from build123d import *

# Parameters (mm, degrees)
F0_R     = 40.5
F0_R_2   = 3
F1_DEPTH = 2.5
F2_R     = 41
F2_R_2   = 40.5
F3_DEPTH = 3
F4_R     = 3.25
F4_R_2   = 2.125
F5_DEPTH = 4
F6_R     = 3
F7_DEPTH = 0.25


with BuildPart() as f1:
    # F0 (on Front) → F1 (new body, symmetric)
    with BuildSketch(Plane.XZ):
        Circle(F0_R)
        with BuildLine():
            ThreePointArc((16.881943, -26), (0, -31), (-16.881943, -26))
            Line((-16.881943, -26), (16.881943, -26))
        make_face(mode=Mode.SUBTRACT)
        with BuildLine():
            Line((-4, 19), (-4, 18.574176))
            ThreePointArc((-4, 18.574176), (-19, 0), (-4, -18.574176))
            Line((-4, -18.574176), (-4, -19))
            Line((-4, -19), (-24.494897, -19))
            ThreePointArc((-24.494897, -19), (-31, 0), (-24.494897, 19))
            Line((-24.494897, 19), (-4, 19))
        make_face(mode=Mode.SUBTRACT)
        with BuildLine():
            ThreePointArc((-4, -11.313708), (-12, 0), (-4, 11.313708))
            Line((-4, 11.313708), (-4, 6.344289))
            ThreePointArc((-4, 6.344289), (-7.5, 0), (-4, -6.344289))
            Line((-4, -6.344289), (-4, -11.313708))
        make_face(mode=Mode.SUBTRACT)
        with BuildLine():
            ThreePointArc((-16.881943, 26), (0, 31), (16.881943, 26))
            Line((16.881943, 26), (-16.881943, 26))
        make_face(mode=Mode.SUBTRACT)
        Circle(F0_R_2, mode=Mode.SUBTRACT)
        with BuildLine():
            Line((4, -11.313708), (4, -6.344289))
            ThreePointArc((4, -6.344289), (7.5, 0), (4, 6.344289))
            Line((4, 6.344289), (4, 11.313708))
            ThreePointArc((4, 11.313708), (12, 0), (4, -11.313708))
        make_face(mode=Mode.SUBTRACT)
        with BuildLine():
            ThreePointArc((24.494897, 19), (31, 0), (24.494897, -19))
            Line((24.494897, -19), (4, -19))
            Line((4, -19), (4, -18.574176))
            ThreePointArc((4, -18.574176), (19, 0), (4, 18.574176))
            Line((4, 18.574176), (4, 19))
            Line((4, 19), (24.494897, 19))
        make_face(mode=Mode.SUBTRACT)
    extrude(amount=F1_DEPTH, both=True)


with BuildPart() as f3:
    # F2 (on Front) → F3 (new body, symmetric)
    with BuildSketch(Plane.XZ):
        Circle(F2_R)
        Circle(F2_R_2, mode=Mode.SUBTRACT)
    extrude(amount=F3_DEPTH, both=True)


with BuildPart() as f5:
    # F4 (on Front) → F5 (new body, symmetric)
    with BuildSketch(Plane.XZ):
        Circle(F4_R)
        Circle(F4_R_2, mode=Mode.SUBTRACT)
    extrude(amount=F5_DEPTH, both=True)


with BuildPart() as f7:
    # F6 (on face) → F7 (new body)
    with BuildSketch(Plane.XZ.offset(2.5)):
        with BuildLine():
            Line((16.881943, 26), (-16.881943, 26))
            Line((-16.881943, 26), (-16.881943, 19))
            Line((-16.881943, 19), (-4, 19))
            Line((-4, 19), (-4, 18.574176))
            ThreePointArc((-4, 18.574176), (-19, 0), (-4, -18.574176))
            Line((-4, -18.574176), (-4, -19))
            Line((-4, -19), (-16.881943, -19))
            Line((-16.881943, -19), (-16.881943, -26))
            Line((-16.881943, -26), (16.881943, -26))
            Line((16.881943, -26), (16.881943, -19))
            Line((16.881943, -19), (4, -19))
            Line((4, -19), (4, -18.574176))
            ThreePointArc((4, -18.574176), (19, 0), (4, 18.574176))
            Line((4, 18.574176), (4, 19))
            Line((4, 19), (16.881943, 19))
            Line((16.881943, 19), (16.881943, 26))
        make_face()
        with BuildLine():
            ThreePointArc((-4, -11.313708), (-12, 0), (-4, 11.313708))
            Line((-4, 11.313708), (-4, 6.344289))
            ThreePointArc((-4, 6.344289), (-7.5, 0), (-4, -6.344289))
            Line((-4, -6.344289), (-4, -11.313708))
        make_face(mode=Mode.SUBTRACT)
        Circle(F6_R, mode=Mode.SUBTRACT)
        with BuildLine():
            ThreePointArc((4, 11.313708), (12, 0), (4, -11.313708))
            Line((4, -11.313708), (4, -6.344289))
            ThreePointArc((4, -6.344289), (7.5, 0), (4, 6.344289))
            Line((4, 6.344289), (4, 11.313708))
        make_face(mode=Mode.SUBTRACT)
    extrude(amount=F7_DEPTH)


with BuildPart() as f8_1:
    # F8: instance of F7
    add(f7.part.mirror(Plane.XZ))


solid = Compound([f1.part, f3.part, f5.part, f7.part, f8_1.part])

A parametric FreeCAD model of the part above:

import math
import FreeCAD as App
import Part
import Sketcher
from FreeCAD import Vector

doc = App.newDocument("Part")
params = doc.addObject("Spreadsheet::Sheet", "Params")
for row, (alias, value) in enumerate([
    ("sketch1_diameter", "81 mm"),
    ("sketch1_diameter2", "6 mm"),
    ("sketch1_radius", "19 mm"),
    ("sketch1_radius2", "30.999998 mm"),
    ("sketch1_radius3", "11.999999 mm"),
    ("pad1_length", "5 mm"),
    ("sketch2_diameter", "82 mm"),
    ("sketch2_diameter2", "81 mm"),
    ("pad2_length", "6 mm"),
    ("sketch3_diameter", "6.5 mm"),
    ("sketch3_diameter2", "4.25 mm"),
    ("pad3_length", "8 mm"),
    ("sketch4_diameter", "6 mm"),
    ("sketch4_radius", "19 mm"),
    ("sketch4_radius2", "11.999999 mm"),
    ("sketch4_radius3", "7.5 mm"),
    ("sketch4_height", "7 mm"),
    ("pad4_length", "0.25 mm"),
], start=1):
    params.set(f"A{row}", alias)
    params.set(f"B{row}", "=" + value)
    params.setAlias(f"B{row}", alias)

body = doc.addObject("PartDesign::Body", "Body")

# Sketch on XZ plane
sketch1 = body.newObject("Sketcher::SketchObject", "Sketch")
sketch1.AttachmentSupport = (doc.getObject("XZ_Plane"), [""])
sketch1.MapMode = "FlatFace"
sketch1.addGeometry([
    Part.Circle(Vector(0, 0, 0), Vector(0, 0, 1), 40.5),  # 0
    Part.LineSegment(Vector(-24.494897, 19, 0), Vector(-4, 19, 0)),  # 1
    Part.LineSegment(Vector(-4, 19, 0), Vector(-4, 18.574176, 0)),  # 2
    Part.ArcOfCircle(Part.Circle(Vector(0, 0, 0), Vector(0, 0, 1), 19), math.radians(102.153199), math.radians(257.846801)),  # 3
    Part.LineSegment(Vector(-4, -18.574176, 0), Vector(-4, -19, 0)),  # 4
    Part.LineSegment(Vector(-4, -19, 0), Vector(-24.494897, -19, 0)),  # 5
    Part.ArcOfCircle(Part.Circle(Vector(-0.000002, 0, 0), Vector(0, 0, 1), 30.999998), math.radians(142.200275), math.radians(217.799725)),  # 6
    Part.LineSegment(Vector(-16.881943, -26, 0), Vector(16.881943, -26, 0)),  # 7
    Part.ArcOfCircle(Part.Circle(Vector(0, 0, 0), Vector(0, 0, 1), 31), math.radians(-122.995886), math.radians(-57.004114)),  # 8
    Part.LineSegment(Vector(-4, -6.344289, 0), Vector(-4, -11.313708, 0)),  # 9
    Part.ArcOfCircle(Part.Circle(Vector(-0.000001, 0, 0), Vector(0, 0, 1), 11.999999), math.radians(109.471218), math.radians(250.528782)),  # 10
    Part.LineSegment(Vector(-4, 11.313708, 0), Vector(-4, 6.344289, 0)),  # 11
    Part.ArcOfCircle(Part.Circle(Vector(0, 0, 0), Vector(0, 0, 1), 7.5), math.radians(122.230954), math.radians(237.769046)),  # 12
    Part.Circle(Vector(0, 0, 0), Vector(0, 0, 1), 3),  # 13
    Part.ArcOfCircle(Part.Circle(Vector(0.000001, 0, 0), Vector(0, 0, 1), 11.999999), math.radians(-70.528782), math.radians(70.528782)),  # 14
    Part.LineSegment(Vector(4, -11.313708, 0), Vector(4, -6.344289, 0)),  # 15
    Part.ArcOfCircle(Part.Circle(Vector(0, 0, 0), Vector(0, 0, 1), 7.5), math.radians(-57.769046), math.radians(57.769046)),  # 16
    Part.LineSegment(Vector(4, 6.344289, 0), Vector(4, 11.313708, 0)),  # 17
    Part.LineSegment(Vector(4, 19, 0), Vector(24.494897, 19, 0)),  # 18
    Part.ArcOfCircle(Part.Circle(Vector(0.000002, 0, 0), Vector(0, 0, 1), 30.999998), math.radians(-37.799725), math.radians(37.799725)),  # 19
    Part.LineSegment(Vector(24.494897, -19, 0), Vector(4, -19, 0)),  # 20
    Part.LineSegment(Vector(4, -19, 0), Vector(4, -18.574176, 0)),  # 21
    Part.ArcOfCircle(Part.Circle(Vector(0, 0, 0), Vector(0, 0, 1), 19), math.radians(-77.846801), math.radians(77.846801)),  # 22
    Part.LineSegment(Vector(4, 18.574176, 0), Vector(4, 19, 0)),  # 23
    Part.LineSegment(Vector(16.881943, 26, 0), Vector(-16.881943, 26, 0)),  # 24
    Part.ArcOfCircle(Part.Circle(Vector(0, 0, 0), Vector(0, 0, 1), 31), math.radians(57.004114), math.radians(122.995886)),  # 25
], False)
sketch1.addConstraint([
    Sketcher.Constraint("Coincident", 1, 2, 2, 1),
    Sketcher.Constraint("Coincident", 2, 2, 3, 1),
    Sketcher.Constraint("Coincident", 3, 2, 4, 1),
    Sketcher.Constraint("Coincident", 4, 2, 5, 1),
    Sketcher.Constraint("Coincident", 5, 2, 6, 2),
    Sketcher.Constraint("Coincident", 6, 1, 1, 1),
    Sketcher.Constraint("Coincident", 7, 1, 8, 1),
    Sketcher.Constraint("Coincident", 8, 2, 7, 2),
    Sketcher.Constraint("Coincident", 9, 2, 10, 2),
    Sketcher.Constraint("Coincident", 10, 1, 11, 1),
    Sketcher.Constraint("Coincident", 11, 2, 12, 1),
    Sketcher.Constraint("Coincident", 12, 2, 9, 1),
    Sketcher.Constraint("Coincident", 14, 1, 15, 1),
    Sketcher.Constraint("Coincident", 15, 2, 16, 1),
    Sketcher.Constraint("Coincident", 16, 2, 17, 1),
    Sketcher.Constraint("Coincident", 17, 2, 14, 2),
    Sketcher.Constraint("Coincident", 18, 2, 19, 2),
    Sketcher.Constraint("Coincident", 19, 1, 20, 1),
    Sketcher.Constraint("Coincident", 20, 2, 21, 1),
    Sketcher.Constraint("Coincident", 21, 2, 22, 1),
    Sketcher.Constraint("Coincident", 22, 2, 23, 1),
    Sketcher.Constraint("Coincident", 23, 2, 18, 1),
    Sketcher.Constraint("Coincident", 24, 1, 25, 1),
    Sketcher.Constraint("Coincident", 25, 2, 24, 2),
    Sketcher.Constraint("Horizontal", 1),
    Sketcher.Constraint("Vertical", 2),
    Sketcher.Constraint("Vertical", 4),
    Sketcher.Constraint("Horizontal", 5),
    Sketcher.Constraint("Horizontal", 7),
    Sketcher.Constraint("Vertical", 9),
    Sketcher.Constraint("Vertical", 11),
    Sketcher.Constraint("Vertical", 15),
    Sketcher.Constraint("Vertical", 17),
    Sketcher.Constraint("Horizontal", 18),
    Sketcher.Constraint("Horizontal", 20),
    Sketcher.Constraint("Vertical", 21),
    Sketcher.Constraint("Vertical", 23),
    Sketcher.Constraint("Horizontal", 24),
    Sketcher.Constraint("Coincident", 0, 3, -1, 1),
    Sketcher.Constraint("Coincident", 3, 3, -1, 1),
    Sketcher.Constraint("Coincident", 6, 3, -1, 1),
    Sketcher.Constraint("Coincident", 8, 3, -1, 1),
    Sketcher.Constraint("Coincident", 10, 3, -1, 1),
    Sketcher.Constraint("Coincident", 12, 3, -1, 1),
    Sketcher.Constraint("Coincident", 13, 3, -1, 1),
    Sketcher.Constraint("Coincident", 14, 3, -1, 1),
    Sketcher.Constraint("Coincident", 16, 3, -1, 1),
    Sketcher.Constraint("Coincident", 19, 3, -1, 1),
    Sketcher.Constraint("Coincident", 22, 3, -1, 1),
    Sketcher.Constraint("Coincident", 25, 3, -1, 1),
    Sketcher.Constraint("Equal", 6, 8),
    Sketcher.Constraint("Equal", 10, 14),
    Sketcher.Constraint("Equal", 12, 16),
    Sketcher.Constraint("Equal", 8, 19),
    Sketcher.Constraint("Equal", 3, 22),
    Sketcher.Constraint("Equal", 19, 25),
    Sketcher.Constraint("Symmetric", 1, 2, 20, 2, -1, 1),
    Sketcher.Constraint("Symmetric", 4, 2, 23, 2, -1, 1),
    Sketcher.Constraint("Symmetric", 4, 2, 20, 2, -2),
    Sketcher.Constraint("Horizontal", 9, 2, 14, 1),
    Sketcher.Constraint("Horizontal", 11, 2, 16, 2),
    Sketcher.Constraint("Vertical", 4, 2, 9, 2),
    Sketcher.Constraint("Vertical", 9, 2, 10, 1),
    Sketcher.Constraint("Vertical", 8, 2, 24, 1),
    Sketcher.Constraint("Diameter", 0, 81.0),
    Sketcher.Constraint("Diameter", 13, 6.0),
    Sketcher.Constraint("Radius", 3, 19.0),
    Sketcher.Constraint("Radius", 6, 30.999998),
    Sketcher.Constraint("Radius", 10, 11.999999),
    Sketcher.Constraint("Radius", 12, 7.5),
    Sketcher.Constraint("DistanceX", 1, 2, -1, 1, 4.0),
    Sketcher.Constraint("DistanceY", -1, 1, 1, 2, 19.0),
    Sketcher.Constraint("DistanceY", 7, 1, -1, 1, 26.0),
])
sketch1.setExpression("Constraints[64]", "Params.sketch1_diameter")
sketch1.setExpression("Constraints[65]", "Params.sketch1_diameter2")
sketch1.setExpression("Constraints[66]", "Params.sketch1_radius")
sketch1.setExpression("Constraints[67]", "Params.sketch1_radius2")
sketch1.setExpression("Constraints[68]", "Params.sketch1_radius3")
pad1 = body.newObject("PartDesign::Pad", "Pad")
pad1.Profile = sketch1
pad1.setExpression("Length", "Params.pad1_length")
pad1.Midplane = True
body2 = doc.addObject("PartDesign::Body", "Body001")

# Sketch on XZ plane
sketch2 = body2.newObject("Sketcher::SketchObject", "Sketch001")
sketch2.AttachmentSupport = (doc.getObject("XZ_Plane001"), [""])
sketch2.MapMode = "FlatFace"
sketch2.addGeometry([
    Part.Circle(Vector(0, 0, 0), Vector(0, 0, 1), 41),
    Part.Circle(Vector(0, 0, 0), Vector(0, 0, 1), 40.5),
], False)
sketch2.addConstraint([
    Sketcher.Constraint("Coincident", 0, 3, -1, 1),
    Sketcher.Constraint("Coincident", 1, 3, -1, 1),
    Sketcher.Constraint("Diameter", 0, 82.0),
    Sketcher.Constraint("Diameter", 1, 81.0),
])
sketch2.setExpression("Constraints[2]", "Params.sketch2_diameter")
sketch2.setExpression("Constraints[3]", "Params.sketch2_diameter2")
pad2 = body2.newObject("PartDesign::Pad", "Pad001")
pad2.Profile = sketch2
pad2.setExpression("Length", "Params.pad2_length")
pad2.Midplane = True
body3 = doc.addObject("PartDesign::Body", "Body002")

# Sketch on XZ plane
sketch3 = body3.newObject("Sketcher::SketchObject", "Sketch002")
sketch3.AttachmentSupport = (doc.getObject("XZ_Plane002"), [""])
sketch3.MapMode = "FlatFace"
sketch3.addGeometry([
    Part.Circle(Vector(0, 0, 0), Vector(0, 0, 1), 3.25),
    Part.Circle(Vector(0, 0, 0), Vector(0, 0, 1), 2.125),
], False)
sketch3.addConstraint([
    Sketcher.Constraint("Coincident", 0, 3, -1, 1),
    Sketcher.Constraint("Coincident", 1, 3, -1, 1),
    Sketcher.Constraint("Diameter", 0, 6.5),
    Sketcher.Constraint("Diameter", 1, 4.25),
])
sketch3.setExpression("Constraints[2]", "Params.sketch3_diameter")
sketch3.setExpression("Constraints[3]", "Params.sketch3_diameter2")
pad3 = body3.newObject("PartDesign::Pad", "Pad002")
pad3.Profile = sketch3
pad3.setExpression("Length", "Params.pad3_length")
pad3.Midplane = True
body4 = doc.addObject("PartDesign::Body", "Body003")

# Sketch on XZ plane
sketch4 = body4.newObject("Sketcher::SketchObject", "Sketch003")
sketch4.AttachmentSupport = (doc.getObject("XZ_Plane003"), [""])
sketch4.MapMode = "FlatFace"
sketch4.AttachmentOffset = App.Placement(Vector(0, 0, 2.5), App.Rotation())
sketch4.addGeometry([
    Part.LineSegment(Vector(16.881943, 26, 0), Vector(-16.881943, 26, 0)),  # 0
    Part.LineSegment(Vector(-16.881943, 26, 0), Vector(-16.881943, 19, 0)),  # 1
    Part.LineSegment(Vector(-16.881943, 19, 0), Vector(-4, 19, 0)),  # 2
    Part.LineSegment(Vector(-4, 19, 0), Vector(-4, 18.574176, 0)),  # 3
    Part.ArcOfCircle(Part.Circle(Vector(0, 0, 0), Vector(0, 0, 1), 19), math.radians(102.153199), math.radians(257.846801)),  # 4
    Part.LineSegment(Vector(-4, -18.574176, 0), Vector(-4, -19, 0)),  # 5
    Part.LineSegment(Vector(-4, -19, 0), Vector(-16.881943, -19, 0)),  # 6
    Part.LineSegment(Vector(-16.881943, -19, 0), Vector(-16.881943, -26, 0)),  # 7
    Part.LineSegment(Vector(-16.881943, -26, 0), Vector(16.881943, -26, 0)),  # 8
    Part.LineSegment(Vector(16.881943, -26, 0), Vector(16.881943, -19, 0)),  # 9
    Part.LineSegment(Vector(16.881943, -19, 0), Vector(4, -19, 0)),  # 10
    Part.LineSegment(Vector(4, -19, 0), Vector(4, -18.574176, 0)),  # 11
    Part.ArcOfCircle(Part.Circle(Vector(0, 0, 0), Vector(0, 0, 1), 19), math.radians(-77.846801), math.radians(77.846801)),  # 12
    Part.LineSegment(Vector(4, 18.574176, 0), Vector(4, 19, 0)),  # 13
    Part.LineSegment(Vector(4, 19, 0), Vector(16.881943, 19, 0)),  # 14
    Part.LineSegment(Vector(16.881943, 19, 0), Vector(16.881943, 26, 0)),  # 15
    Part.LineSegment(Vector(-4, -6.344289, 0), Vector(-4, -11.313708, 0)),  # 16
    Part.ArcOfCircle(Part.Circle(Vector(-0.000001, 0, 0), Vector(0, 0, 1), 11.999999), math.radians(109.471218), math.radians(250.528782)),  # 17
    Part.LineSegment(Vector(-4, 11.313708, 0), Vector(-4, 6.344289, 0)),  # 18
    Part.ArcOfCircle(Part.Circle(Vector(0, 0, 0), Vector(0, 0, 1), 7.5), math.radians(122.230954), math.radians(237.769046)),  # 19
    Part.Circle(Vector(0, 0, 0), Vector(0, 0, 1), 3),  # 20
    Part.LineSegment(Vector(4, 6.344289, 0), Vector(4, 11.313708, 0)),  # 21
    Part.ArcOfCircle(Part.Circle(Vector(0.000001, 0, 0), Vector(0, 0, 1), 11.999999), math.radians(-70.528782), math.radians(70.528782)),  # 22
    Part.LineSegment(Vector(4, -11.313708, 0), Vector(4, -6.344289, 0)),  # 23
    Part.ArcOfCircle(Part.Circle(Vector(0, 0, 0), Vector(0, 0, 1), 7.5), math.radians(-57.769046), math.radians(57.769046)),  # 24
], False)
sketch4.addConstraint([
    Sketcher.Constraint("Coincident", 0, 2, 1, 1),
    Sketcher.Constraint("Coincident", 1, 2, 2, 1),
    Sketcher.Constraint("Coincident", 2, 2, 3, 1),
    Sketcher.Constraint("Coincident", 3, 2, 4, 1),
    Sketcher.Constraint("Coincident", 4, 2, 5, 1),
    Sketcher.Constraint("Coincident", 5, 2, 6, 1),
    Sketcher.Constraint("Coincident", 6, 2, 7, 1),
    Sketcher.Constraint("Coincident", 7, 2, 8, 1),
    Sketcher.Constraint("Coincident", 8, 2, 9, 1),
    Sketcher.Constraint("Coincident", 9, 2, 10, 1),
    Sketcher.Constraint("Coincident", 10, 2, 11, 1),
    Sketcher.Constraint("Coincident", 11, 2, 12, 1),
    Sketcher.Constraint("Coincident", 12, 2, 13, 1),
    Sketcher.Constraint("Coincident", 13, 2, 14, 1),
    Sketcher.Constraint("Coincident", 14, 2, 15, 1),
    Sketcher.Constraint("Coincident", 15, 2, 0, 1),
    Sketcher.Constraint("Coincident", 16, 2, 17, 2),
    Sketcher.Constraint("Coincident", 17, 1, 18, 1),
    Sketcher.Constraint("Coincident", 18, 2, 19, 1),
    Sketcher.Constraint("Coincident", 19, 2, 16, 1),
    Sketcher.Constraint("Coincident", 21, 2, 22, 2),
    Sketcher.Constraint("Coincident", 22, 1, 23, 1),
    Sketcher.Constraint("Coincident", 23, 2, 24, 1),
    Sketcher.Constraint("Coincident", 24, 2, 21, 1),
    Sketcher.Constraint("Horizontal", 0),
    Sketcher.Constraint("Vertical", 1),
    Sketcher.Constraint("Horizontal", 2),
    Sketcher.Constraint("Vertical", 3),
    Sketcher.Constraint("Vertical", 5),
    Sketcher.Constraint("Horizontal", 6),
    Sketcher.Constraint("Vertical", 7),
    Sketcher.Constraint("Horizontal", 8),
    Sketcher.Constraint("Vertical", 9),
    Sketcher.Constraint("Horizontal", 10),
    Sketcher.Constraint("Vertical", 11),
    Sketcher.Constraint("Vertical", 13),
    Sketcher.Constraint("Horizontal", 14),
    Sketcher.Constraint("Vertical", 15),
    Sketcher.Constraint("Vertical", 16),
    Sketcher.Constraint("Vertical", 18),
    Sketcher.Constraint("Vertical", 21),
    Sketcher.Constraint("Vertical", 23),
    Sketcher.Constraint("Coincident", 4, 3, -1, 1),
    Sketcher.Constraint("Coincident", 12, 3, -1, 1),
    Sketcher.Constraint("Coincident", 17, 3, -1, 1),
    Sketcher.Constraint("Coincident", 19, 3, -1, 1),
    Sketcher.Constraint("Coincident", 20, 3, -1, 1),
    Sketcher.Constraint("Coincident", 22, 3, -1, 1),
    Sketcher.Constraint("Coincident", 24, 3, -1, 1),
    Sketcher.Constraint("Equal", 4, 12),
    Sketcher.Constraint("Equal", 17, 22),
    Sketcher.Constraint("Equal", 19, 24),
    Sketcher.Constraint("Symmetric", 0, 2, 8, 2, -1, 1),
    Sketcher.Constraint("Symmetric", 2, 2, 10, 2, -1, 1),
    Sketcher.Constraint("Symmetric", 5, 2, 13, 2, -1, 1),
    Sketcher.Constraint("Symmetric", 6, 2, 9, 2, -2),
    Sketcher.Constraint("Horizontal", 4, 2, 11, 2),
    Sketcher.Constraint("Horizontal", 17, 1, 21, 2),
    Sketcher.Constraint("Horizontal", 16, 2, 22, 1),
    Sketcher.Constraint("Vertical", 9, 2, 14, 2),
    Sketcher.Constraint("Vertical", 5, 2, 16, 2),
    Sketcher.Constraint("Vertical", 16, 2, 17, 1),
    Sketcher.Constraint("Diameter", 20, 6.0),
    Sketcher.Constraint("Radius", 4, 19.0),
    Sketcher.Constraint("Radius", 17, 11.999999),
    Sketcher.Constraint("Radius", 19, 7.5),
    Sketcher.Constraint("DistanceY", 1, 2, 1, 1, 7.0),
    Sketcher.Constraint("DistanceY", -1, 1, 0, 2, 26.0),
    Sketcher.Constraint("DistanceX", 2, 2, -1, 1, 4.0),
    Sketcher.Constraint("DistanceX", 0, 2, 0, 1, 33.763886),
])
sketch4.setExpression("Constraints[62]", "Params.sketch4_diameter")
sketch4.setExpression("Constraints[63]", "Params.sketch4_radius")
sketch4.setExpression("Constraints[64]", "Params.sketch4_radius2")
sketch4.setExpression("Constraints[65]", "Params.sketch4_radius3")
sketch4.setExpression("Constraints[66]", "Params.sketch4_height")
pad4 = body4.newObject("PartDesign::Pad", "Pad003")
pad4.Profile = sketch4
pad4.setExpression("Length", "Params.pad4_length")
body5 = doc.addObject("PartDesign::Body", "Body004")
doc.recompute()

mirroring = doc.addObject("Part::Mirroring", "Mirroring")
mirroring.Source = body4
mirroring.Base = Vector(0, 0, 0)
mirroring.Normal = Vector(0, -1, 0)
body5.BaseFeature = mirroring
doc.recompute()
mirroring.Visibility = False

doc.recompute()
